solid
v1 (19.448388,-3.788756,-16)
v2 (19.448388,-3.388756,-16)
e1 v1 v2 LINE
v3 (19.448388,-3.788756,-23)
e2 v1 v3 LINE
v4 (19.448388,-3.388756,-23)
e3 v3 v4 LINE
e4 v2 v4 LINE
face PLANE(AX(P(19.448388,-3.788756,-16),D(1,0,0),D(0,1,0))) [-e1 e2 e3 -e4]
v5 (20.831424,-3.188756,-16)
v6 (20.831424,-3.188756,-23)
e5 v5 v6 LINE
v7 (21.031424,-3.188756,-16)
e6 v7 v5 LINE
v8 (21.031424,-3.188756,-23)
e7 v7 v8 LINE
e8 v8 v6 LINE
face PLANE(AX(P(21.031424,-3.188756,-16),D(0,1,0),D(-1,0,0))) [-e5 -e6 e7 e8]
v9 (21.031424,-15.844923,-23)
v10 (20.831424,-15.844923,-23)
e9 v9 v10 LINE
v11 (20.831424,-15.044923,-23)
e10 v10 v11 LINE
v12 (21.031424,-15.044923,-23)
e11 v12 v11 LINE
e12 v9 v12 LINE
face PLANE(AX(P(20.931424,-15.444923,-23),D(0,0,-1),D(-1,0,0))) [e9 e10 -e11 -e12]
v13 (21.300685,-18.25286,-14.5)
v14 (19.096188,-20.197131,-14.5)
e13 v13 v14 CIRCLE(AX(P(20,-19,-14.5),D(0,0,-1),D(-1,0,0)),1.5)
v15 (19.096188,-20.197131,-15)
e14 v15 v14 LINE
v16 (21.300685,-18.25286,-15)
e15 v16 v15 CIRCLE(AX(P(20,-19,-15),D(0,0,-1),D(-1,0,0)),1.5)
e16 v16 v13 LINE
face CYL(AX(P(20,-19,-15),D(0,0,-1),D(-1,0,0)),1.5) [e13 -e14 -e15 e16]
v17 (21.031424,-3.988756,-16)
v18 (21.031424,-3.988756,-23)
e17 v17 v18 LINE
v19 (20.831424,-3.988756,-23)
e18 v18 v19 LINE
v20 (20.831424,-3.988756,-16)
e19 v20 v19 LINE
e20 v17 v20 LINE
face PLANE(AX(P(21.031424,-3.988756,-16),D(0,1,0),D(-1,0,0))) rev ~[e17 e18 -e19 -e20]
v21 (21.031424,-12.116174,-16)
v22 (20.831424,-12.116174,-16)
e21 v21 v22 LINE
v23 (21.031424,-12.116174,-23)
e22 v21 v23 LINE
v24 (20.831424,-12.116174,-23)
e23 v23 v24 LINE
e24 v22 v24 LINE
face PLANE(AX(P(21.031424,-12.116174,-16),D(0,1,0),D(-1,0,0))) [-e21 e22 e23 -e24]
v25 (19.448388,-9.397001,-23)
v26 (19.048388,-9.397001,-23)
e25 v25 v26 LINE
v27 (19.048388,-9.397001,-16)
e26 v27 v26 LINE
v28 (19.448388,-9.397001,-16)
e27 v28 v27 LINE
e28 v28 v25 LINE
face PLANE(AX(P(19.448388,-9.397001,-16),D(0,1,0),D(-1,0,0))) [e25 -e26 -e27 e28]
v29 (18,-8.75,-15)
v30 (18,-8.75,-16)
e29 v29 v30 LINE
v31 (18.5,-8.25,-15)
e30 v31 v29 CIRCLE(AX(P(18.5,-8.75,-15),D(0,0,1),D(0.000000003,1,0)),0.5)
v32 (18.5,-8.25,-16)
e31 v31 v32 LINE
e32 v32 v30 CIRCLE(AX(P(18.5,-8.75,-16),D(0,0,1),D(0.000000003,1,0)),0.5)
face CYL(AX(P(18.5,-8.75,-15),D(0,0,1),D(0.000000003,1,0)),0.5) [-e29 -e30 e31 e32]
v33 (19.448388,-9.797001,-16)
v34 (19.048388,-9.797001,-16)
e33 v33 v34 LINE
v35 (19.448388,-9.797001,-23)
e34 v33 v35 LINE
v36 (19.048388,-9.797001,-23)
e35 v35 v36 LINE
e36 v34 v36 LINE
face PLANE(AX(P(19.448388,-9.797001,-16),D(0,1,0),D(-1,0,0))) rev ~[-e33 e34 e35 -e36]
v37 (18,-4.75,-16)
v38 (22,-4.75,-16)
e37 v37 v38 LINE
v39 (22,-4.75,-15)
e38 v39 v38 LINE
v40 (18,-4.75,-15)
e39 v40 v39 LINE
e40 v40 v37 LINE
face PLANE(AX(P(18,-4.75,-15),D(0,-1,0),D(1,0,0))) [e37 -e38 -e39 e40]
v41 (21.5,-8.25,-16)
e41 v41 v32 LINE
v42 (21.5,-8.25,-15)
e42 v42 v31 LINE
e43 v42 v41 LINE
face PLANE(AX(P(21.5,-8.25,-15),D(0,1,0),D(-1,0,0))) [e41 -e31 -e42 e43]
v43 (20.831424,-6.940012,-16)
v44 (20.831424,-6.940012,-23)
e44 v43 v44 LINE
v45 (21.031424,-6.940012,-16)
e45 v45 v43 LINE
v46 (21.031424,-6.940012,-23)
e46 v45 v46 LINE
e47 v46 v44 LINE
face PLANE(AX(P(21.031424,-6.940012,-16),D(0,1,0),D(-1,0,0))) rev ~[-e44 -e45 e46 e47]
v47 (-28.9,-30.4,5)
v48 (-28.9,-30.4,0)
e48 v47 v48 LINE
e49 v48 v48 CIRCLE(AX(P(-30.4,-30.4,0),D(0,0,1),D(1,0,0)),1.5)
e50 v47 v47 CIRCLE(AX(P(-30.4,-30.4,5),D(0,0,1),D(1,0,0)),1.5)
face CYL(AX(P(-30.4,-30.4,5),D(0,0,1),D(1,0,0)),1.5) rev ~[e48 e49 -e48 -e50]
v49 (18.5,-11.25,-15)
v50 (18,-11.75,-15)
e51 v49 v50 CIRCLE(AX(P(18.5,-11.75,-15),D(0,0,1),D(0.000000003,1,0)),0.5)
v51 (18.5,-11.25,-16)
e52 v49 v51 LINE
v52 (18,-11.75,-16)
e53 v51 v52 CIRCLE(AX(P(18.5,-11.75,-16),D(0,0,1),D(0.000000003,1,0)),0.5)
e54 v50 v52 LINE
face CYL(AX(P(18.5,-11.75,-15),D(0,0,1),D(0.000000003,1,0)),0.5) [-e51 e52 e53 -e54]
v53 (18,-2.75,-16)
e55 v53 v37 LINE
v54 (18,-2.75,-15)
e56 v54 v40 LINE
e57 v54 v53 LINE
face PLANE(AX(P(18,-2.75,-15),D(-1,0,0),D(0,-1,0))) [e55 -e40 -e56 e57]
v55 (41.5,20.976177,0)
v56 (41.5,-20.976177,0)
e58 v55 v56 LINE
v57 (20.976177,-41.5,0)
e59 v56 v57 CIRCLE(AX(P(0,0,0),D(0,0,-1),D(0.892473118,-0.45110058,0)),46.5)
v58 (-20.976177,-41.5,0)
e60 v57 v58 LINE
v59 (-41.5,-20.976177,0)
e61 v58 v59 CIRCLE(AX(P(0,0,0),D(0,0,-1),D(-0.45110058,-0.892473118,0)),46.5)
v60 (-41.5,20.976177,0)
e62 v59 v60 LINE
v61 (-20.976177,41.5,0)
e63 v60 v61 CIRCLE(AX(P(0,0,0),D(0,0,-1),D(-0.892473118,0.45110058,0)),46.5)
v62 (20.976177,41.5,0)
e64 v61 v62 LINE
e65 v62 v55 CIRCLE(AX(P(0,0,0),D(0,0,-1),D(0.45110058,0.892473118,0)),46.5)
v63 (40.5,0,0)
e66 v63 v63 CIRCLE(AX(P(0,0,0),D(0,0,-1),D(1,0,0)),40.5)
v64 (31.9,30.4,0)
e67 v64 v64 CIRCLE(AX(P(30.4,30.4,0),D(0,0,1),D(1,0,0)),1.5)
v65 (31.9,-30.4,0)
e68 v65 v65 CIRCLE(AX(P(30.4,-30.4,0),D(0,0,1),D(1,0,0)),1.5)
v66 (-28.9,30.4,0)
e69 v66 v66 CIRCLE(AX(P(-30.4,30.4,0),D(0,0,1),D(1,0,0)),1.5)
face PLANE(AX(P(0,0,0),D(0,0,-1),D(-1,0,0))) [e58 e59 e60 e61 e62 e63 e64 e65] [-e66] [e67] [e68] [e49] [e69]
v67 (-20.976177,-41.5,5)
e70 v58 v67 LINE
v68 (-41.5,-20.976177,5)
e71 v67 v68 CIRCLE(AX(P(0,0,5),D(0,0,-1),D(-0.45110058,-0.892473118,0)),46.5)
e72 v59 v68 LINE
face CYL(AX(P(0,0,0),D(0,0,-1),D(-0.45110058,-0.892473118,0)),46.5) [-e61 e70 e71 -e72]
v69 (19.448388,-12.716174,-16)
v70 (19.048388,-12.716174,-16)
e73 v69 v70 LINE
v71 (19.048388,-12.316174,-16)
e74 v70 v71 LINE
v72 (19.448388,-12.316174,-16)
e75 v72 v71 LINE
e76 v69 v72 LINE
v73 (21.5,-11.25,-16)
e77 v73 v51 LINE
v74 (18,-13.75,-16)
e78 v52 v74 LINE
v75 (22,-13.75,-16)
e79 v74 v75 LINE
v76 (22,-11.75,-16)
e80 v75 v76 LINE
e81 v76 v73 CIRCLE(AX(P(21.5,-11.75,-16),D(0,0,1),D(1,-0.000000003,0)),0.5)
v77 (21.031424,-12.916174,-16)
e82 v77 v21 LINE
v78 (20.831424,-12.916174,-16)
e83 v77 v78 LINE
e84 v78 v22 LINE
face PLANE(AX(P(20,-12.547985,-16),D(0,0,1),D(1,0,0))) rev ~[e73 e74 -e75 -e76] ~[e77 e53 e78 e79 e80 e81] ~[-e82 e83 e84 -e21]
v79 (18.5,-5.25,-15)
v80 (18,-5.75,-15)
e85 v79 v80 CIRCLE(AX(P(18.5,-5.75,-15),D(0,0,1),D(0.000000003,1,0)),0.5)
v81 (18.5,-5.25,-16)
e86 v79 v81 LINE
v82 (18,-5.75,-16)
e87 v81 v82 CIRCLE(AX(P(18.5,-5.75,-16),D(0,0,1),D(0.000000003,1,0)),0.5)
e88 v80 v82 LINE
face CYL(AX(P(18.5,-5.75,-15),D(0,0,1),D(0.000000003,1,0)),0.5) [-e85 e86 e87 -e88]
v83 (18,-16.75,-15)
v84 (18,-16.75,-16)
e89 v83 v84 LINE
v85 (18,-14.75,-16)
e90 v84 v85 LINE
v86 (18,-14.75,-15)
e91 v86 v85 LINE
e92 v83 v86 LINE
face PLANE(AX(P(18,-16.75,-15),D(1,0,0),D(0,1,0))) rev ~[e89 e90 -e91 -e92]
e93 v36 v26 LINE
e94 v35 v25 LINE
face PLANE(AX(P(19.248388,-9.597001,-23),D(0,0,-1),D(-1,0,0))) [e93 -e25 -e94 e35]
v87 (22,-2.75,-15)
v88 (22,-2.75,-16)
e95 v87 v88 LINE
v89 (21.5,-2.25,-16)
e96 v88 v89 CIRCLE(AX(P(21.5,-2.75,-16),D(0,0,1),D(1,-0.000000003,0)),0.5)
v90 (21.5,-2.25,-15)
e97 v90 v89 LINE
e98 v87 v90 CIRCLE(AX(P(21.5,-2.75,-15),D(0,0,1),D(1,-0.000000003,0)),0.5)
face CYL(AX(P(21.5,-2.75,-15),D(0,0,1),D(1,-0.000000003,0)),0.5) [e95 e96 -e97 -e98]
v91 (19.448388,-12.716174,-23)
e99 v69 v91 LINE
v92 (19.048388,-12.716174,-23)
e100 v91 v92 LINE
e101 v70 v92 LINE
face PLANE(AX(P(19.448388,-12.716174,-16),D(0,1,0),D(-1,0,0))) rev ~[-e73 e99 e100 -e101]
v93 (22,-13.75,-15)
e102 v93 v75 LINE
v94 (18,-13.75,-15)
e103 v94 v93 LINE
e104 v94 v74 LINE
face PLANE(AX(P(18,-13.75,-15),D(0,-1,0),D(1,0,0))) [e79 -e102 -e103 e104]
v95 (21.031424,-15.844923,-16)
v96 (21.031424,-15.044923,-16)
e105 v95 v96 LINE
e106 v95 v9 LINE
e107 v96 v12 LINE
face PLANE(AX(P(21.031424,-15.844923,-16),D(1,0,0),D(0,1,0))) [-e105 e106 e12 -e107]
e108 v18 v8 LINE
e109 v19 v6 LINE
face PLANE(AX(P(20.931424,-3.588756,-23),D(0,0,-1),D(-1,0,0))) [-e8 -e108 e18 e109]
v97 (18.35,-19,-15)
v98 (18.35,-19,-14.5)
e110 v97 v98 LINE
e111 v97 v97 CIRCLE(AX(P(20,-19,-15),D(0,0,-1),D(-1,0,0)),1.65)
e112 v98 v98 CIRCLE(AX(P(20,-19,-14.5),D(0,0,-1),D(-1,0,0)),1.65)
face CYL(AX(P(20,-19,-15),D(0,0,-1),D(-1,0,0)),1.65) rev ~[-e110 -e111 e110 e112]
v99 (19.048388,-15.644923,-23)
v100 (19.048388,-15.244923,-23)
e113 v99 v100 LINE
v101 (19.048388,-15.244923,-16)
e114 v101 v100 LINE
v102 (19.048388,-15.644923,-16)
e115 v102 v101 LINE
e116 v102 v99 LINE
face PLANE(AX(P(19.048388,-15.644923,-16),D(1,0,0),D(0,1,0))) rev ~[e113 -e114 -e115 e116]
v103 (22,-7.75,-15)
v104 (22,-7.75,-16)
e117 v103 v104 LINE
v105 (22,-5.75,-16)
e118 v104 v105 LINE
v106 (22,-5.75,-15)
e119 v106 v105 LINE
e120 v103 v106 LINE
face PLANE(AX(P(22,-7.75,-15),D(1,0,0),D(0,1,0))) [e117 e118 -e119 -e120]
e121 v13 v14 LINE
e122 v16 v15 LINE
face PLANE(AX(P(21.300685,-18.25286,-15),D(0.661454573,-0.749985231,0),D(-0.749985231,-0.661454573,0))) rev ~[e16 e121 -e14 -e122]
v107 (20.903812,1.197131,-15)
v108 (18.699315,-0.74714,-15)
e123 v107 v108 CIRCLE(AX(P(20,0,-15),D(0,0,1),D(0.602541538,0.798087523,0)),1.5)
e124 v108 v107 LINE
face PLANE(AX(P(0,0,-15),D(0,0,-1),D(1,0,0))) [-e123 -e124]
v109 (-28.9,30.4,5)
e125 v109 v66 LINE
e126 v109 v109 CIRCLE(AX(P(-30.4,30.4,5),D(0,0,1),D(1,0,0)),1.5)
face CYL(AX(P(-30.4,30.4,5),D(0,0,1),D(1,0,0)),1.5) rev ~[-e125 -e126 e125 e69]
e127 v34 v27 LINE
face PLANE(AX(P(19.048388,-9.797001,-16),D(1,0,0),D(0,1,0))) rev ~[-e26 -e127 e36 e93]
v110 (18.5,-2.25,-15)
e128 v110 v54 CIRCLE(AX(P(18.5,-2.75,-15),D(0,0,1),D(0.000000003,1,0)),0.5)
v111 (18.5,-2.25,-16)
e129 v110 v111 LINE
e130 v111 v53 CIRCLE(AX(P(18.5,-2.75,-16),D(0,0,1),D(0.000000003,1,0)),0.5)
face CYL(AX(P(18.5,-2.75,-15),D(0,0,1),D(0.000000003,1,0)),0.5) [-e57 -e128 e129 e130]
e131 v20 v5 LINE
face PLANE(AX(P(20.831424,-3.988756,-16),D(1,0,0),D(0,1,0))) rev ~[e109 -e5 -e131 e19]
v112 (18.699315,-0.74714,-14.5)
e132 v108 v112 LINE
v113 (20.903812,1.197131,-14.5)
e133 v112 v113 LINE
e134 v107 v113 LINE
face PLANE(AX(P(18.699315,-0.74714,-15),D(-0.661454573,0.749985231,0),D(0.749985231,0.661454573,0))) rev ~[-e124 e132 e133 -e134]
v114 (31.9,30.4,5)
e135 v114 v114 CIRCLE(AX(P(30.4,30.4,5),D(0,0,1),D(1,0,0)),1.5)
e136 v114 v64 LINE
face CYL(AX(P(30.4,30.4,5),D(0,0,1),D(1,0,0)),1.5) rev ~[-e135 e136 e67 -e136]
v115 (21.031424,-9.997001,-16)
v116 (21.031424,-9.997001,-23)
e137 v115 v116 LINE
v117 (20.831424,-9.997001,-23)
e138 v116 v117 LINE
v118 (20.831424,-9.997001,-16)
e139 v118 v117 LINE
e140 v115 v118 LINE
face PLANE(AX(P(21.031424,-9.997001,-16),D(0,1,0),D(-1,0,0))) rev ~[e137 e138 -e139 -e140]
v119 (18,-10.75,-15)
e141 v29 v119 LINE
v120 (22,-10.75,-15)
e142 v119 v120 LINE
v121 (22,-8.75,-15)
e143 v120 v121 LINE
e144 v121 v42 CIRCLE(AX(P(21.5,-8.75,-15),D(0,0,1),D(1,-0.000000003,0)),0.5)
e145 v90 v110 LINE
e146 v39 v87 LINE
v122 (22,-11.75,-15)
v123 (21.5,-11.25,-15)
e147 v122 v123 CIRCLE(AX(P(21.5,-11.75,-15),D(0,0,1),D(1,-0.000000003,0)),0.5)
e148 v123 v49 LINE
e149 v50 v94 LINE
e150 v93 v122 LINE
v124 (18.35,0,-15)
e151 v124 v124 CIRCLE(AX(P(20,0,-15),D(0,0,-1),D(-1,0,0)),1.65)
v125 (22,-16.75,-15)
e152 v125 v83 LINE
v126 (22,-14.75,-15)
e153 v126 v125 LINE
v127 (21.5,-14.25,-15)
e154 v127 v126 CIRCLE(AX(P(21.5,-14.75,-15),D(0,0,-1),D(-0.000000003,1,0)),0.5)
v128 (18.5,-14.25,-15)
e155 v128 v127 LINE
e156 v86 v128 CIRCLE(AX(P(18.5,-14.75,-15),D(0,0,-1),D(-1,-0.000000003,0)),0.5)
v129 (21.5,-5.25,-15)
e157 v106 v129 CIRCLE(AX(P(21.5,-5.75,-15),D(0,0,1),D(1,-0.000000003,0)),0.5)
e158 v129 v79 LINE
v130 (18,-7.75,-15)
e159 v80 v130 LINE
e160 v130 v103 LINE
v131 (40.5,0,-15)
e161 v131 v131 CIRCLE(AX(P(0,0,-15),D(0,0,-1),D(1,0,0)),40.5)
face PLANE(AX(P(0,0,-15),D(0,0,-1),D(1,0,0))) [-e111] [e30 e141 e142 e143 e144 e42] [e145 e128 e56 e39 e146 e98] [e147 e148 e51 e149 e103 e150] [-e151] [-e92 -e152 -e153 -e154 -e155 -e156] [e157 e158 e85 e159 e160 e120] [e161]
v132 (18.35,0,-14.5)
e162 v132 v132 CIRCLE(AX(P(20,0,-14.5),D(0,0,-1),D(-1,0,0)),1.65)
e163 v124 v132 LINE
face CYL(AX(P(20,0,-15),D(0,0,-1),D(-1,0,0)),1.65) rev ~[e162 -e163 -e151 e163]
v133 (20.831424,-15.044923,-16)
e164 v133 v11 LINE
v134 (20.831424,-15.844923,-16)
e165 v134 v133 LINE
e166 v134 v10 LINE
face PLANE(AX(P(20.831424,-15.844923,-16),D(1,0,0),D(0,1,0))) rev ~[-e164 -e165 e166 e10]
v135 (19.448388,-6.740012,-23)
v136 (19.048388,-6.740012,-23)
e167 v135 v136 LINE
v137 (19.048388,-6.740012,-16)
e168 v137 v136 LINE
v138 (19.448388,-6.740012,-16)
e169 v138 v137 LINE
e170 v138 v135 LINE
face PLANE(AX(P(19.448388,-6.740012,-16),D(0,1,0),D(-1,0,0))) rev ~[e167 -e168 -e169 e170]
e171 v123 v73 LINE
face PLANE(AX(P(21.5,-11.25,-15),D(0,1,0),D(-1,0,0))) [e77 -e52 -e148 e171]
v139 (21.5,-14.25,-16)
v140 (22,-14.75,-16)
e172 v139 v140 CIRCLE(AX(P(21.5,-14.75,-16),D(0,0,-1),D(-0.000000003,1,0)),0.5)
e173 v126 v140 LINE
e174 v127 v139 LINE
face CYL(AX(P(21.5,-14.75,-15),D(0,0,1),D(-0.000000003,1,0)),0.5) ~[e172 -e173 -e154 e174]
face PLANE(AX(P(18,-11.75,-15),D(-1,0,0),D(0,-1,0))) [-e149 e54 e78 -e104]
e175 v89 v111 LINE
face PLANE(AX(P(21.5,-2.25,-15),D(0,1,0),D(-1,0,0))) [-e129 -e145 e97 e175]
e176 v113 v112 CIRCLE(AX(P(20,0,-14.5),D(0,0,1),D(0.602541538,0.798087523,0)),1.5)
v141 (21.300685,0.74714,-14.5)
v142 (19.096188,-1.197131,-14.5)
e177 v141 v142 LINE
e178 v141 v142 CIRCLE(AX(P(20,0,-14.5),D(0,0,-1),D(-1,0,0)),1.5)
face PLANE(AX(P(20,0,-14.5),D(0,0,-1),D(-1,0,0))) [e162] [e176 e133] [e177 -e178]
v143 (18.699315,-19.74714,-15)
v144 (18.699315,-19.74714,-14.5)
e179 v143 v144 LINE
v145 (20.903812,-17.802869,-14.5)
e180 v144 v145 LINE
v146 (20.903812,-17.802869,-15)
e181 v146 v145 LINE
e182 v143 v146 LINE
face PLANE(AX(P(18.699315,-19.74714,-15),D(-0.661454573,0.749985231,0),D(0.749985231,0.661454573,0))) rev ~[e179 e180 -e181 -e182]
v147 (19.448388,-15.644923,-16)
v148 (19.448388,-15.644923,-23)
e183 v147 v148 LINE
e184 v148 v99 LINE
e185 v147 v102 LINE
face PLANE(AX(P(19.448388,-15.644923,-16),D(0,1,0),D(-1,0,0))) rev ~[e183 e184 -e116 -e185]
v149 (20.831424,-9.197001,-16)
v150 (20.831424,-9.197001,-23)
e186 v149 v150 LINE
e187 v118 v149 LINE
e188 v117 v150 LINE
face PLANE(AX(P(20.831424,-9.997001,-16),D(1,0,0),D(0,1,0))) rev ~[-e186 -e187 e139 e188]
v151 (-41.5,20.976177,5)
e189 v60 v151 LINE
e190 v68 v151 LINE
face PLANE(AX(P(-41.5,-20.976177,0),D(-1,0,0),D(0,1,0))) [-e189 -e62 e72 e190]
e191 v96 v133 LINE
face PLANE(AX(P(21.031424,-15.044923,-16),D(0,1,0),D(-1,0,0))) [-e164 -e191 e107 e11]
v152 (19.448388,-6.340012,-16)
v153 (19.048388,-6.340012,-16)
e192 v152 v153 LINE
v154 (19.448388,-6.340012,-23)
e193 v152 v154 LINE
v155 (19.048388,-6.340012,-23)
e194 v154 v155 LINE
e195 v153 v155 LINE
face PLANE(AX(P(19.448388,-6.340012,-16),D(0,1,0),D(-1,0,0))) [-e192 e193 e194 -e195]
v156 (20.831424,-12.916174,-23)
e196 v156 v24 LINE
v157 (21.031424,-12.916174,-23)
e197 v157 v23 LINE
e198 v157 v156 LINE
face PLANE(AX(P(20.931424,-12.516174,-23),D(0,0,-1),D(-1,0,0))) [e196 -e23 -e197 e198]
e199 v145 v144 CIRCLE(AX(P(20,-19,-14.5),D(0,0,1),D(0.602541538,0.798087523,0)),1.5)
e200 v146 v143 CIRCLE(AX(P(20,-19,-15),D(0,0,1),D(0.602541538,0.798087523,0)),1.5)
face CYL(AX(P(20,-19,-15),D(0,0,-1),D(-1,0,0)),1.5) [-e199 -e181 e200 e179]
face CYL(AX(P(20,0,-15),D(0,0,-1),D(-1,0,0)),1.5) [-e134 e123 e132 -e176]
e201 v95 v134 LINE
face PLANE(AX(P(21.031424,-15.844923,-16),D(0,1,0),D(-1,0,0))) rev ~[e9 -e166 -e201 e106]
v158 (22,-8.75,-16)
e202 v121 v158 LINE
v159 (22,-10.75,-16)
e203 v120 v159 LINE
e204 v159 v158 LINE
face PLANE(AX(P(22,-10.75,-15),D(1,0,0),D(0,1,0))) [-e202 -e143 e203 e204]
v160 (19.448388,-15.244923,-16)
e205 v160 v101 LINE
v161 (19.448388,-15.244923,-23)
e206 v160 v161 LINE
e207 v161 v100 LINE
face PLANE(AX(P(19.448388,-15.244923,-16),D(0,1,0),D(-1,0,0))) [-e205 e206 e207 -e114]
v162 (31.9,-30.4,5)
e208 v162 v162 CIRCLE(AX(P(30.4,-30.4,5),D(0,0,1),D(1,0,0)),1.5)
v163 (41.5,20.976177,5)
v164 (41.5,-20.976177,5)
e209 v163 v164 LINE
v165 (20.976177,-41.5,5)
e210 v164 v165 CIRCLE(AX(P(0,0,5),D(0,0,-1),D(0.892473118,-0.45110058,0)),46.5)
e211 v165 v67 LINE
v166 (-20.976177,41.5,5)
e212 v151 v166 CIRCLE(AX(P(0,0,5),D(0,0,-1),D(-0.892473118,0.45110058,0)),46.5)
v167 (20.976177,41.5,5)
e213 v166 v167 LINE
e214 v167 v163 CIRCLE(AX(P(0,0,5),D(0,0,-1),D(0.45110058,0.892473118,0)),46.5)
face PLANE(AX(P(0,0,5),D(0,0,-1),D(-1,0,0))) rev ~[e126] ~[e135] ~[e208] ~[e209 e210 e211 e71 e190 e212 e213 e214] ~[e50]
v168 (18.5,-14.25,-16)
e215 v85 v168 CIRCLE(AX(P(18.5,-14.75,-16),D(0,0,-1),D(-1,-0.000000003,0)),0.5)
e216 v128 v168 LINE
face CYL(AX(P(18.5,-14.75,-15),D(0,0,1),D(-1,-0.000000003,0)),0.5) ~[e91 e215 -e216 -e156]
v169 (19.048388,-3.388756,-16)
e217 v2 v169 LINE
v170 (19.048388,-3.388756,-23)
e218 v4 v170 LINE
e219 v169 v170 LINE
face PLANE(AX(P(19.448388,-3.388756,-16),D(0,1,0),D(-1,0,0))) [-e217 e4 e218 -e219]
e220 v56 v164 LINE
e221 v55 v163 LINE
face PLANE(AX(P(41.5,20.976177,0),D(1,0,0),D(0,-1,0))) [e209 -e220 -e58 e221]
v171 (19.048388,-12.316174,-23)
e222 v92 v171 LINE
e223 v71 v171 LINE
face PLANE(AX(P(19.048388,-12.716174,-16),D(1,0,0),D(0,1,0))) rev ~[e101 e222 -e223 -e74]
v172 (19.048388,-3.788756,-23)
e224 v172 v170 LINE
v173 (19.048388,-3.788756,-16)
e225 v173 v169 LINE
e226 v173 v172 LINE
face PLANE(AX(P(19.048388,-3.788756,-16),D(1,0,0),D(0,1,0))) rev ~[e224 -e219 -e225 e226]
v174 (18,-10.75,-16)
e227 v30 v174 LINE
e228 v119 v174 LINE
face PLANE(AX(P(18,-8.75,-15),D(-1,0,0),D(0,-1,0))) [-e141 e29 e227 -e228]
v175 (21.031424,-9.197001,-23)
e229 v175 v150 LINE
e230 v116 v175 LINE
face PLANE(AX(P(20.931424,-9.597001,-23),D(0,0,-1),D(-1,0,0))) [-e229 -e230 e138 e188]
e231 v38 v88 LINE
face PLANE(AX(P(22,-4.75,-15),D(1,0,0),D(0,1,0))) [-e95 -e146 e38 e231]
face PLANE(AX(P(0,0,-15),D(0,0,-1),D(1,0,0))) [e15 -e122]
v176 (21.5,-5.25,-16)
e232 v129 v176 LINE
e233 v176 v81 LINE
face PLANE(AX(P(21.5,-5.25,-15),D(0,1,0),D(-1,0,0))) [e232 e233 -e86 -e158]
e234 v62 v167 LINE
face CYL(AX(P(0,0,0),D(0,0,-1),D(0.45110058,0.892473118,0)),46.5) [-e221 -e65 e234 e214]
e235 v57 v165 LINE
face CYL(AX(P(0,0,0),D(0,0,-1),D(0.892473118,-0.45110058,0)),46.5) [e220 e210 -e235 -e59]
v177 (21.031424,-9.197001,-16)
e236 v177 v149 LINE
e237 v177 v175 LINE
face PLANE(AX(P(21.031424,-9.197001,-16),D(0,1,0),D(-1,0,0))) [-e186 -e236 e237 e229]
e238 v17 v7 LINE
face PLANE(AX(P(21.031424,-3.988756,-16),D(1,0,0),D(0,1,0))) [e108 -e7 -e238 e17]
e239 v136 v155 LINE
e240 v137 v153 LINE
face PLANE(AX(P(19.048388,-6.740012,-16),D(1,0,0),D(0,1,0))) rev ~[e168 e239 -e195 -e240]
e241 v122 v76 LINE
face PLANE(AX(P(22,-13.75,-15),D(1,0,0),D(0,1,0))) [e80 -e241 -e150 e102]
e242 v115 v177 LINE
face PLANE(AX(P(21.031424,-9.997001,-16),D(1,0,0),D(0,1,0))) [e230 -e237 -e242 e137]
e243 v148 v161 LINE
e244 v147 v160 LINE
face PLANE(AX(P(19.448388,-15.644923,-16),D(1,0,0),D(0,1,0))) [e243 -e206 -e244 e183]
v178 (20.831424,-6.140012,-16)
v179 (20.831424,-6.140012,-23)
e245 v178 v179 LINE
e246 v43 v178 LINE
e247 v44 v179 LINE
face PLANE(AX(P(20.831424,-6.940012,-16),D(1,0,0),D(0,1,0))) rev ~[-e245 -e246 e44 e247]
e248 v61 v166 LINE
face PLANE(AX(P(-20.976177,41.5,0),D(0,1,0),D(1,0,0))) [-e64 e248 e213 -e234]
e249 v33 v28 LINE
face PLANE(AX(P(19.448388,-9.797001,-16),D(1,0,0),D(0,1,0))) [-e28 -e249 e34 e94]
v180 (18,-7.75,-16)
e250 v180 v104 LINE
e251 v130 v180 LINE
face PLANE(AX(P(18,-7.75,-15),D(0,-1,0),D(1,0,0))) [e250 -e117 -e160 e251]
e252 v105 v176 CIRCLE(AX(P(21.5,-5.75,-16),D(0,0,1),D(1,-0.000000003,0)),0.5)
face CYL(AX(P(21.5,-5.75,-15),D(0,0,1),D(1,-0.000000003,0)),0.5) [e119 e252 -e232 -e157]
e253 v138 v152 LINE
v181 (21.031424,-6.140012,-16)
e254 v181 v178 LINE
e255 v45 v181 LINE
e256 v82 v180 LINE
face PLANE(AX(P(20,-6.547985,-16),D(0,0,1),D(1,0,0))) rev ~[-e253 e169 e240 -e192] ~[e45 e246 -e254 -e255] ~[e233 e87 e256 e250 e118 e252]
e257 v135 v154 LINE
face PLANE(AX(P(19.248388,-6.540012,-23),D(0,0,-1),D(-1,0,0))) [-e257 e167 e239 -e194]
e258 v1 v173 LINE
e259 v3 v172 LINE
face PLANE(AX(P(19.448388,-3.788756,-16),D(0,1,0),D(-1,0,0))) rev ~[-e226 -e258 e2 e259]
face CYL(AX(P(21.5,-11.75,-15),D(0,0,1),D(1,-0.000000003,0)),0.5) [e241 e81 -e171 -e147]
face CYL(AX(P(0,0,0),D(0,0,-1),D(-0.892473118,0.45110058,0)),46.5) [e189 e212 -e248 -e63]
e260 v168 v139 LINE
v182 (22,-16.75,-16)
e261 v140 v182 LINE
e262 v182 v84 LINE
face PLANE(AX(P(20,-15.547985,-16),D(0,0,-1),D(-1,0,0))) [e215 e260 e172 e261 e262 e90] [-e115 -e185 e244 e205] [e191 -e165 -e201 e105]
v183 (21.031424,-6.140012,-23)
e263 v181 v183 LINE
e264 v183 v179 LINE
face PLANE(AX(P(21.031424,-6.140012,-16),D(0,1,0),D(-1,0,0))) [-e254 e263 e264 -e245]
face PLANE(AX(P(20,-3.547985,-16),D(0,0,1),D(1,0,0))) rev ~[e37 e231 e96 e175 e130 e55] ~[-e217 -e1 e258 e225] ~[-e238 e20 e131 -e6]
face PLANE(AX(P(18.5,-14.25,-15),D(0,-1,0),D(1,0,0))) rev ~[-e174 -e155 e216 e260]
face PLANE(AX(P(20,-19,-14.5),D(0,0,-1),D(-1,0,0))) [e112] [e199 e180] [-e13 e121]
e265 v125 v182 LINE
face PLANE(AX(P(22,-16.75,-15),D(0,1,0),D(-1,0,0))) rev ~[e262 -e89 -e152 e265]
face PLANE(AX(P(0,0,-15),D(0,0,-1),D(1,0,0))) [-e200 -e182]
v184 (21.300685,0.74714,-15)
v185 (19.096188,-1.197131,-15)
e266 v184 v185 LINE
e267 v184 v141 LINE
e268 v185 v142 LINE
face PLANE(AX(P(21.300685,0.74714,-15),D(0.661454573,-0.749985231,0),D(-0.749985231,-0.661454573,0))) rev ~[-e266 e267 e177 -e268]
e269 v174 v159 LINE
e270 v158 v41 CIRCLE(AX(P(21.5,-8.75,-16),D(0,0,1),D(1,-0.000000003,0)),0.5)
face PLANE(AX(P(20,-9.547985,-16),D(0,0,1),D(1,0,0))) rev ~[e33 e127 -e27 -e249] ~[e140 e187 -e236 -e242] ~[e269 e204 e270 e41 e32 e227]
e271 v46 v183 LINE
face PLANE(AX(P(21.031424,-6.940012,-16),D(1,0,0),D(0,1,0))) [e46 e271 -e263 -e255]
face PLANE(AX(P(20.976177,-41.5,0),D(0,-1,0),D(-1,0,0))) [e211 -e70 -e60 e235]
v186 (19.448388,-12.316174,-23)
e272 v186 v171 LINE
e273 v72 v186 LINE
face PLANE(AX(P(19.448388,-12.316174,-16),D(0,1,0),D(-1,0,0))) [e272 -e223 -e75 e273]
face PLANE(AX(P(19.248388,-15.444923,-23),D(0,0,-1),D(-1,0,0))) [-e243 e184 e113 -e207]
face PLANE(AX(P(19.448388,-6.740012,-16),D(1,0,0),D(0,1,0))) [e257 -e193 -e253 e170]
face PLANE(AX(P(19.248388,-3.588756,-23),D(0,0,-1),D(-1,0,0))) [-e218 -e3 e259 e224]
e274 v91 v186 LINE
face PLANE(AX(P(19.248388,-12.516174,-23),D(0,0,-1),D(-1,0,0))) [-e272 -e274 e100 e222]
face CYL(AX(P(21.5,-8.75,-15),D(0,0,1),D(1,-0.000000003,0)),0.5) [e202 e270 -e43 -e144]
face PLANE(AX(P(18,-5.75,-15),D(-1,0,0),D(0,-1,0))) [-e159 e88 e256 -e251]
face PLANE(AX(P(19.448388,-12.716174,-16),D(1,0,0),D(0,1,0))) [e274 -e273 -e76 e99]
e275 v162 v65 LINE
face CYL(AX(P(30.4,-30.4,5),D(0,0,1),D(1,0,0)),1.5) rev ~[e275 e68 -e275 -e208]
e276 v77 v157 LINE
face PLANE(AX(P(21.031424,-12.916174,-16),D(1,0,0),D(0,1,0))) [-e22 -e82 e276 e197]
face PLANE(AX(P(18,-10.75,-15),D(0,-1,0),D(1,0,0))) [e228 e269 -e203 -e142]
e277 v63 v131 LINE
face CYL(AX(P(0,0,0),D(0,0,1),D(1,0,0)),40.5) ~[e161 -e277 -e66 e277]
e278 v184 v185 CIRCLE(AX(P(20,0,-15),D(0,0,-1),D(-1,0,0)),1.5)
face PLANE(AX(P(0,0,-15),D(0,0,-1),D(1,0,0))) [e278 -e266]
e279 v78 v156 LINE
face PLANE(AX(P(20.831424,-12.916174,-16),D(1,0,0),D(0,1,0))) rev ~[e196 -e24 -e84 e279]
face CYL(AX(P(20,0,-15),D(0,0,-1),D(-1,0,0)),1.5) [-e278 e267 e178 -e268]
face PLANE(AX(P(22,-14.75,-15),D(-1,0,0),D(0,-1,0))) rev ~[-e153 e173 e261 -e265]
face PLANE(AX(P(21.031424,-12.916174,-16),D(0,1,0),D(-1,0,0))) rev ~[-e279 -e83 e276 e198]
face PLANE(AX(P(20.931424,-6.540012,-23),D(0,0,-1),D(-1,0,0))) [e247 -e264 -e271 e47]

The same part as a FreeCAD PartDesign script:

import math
import FreeCAD as App
import Part
import Sketcher

V = App.Vector


def add_polygon(sketch, points):
    """Adds a closed chain of lines whose ends are joined by coincident constraints."""
    first, n = sketch.GeometryCount, len(points)
    for a, b in zip(points, points[1:] + points[:1]):
        sketch.addGeometry(Part.LineSegment(App.Vector(*a, 0), App.Vector(*b, 0)), False)
    for i in range(n):
        sketch.addConstraint(Sketcher.Constraint("Coincident", first + i, 2, first + (i + 1) % n, 1))

doc = App.newDocument("Part")
body = doc.addObject("PartDesign::Body", "Body")

sketch1 = body.newObject("Sketcher::SketchObject", "Sketch")
sketch1.AttachmentSupport = (doc.getObject("XY_Plane"), [""])
sketch1.MapMode = "FlatFace"
sketch1.addGeometry(Part.LineSegment(V(20.976177, 41.5, 0), V(-20.976177, 41.5, 0)), False)
sketch1.addGeometry(Part.ArcOfCircle(Part.Circle(V(0, 0, 0), V(0, 0, 1), 46.5), math.radians(116.814318), math.radians(153.185682)), False)
sketch1.addGeometry(Part.LineSegment(V(-41.5, 20.976177, 0), V(-41.5, -20.976177, 0)), False)
sketch1.addGeometry(Part.ArcOfCircle(Part.Circle(V(0, 0, 0), V(0, 0, 1), 46.5), math.radians(-153.185682), math.radians(-116.814318)), False)
sketch1.addGeometry(Part.LineSegment(V(-20.976177, -41.5, 0), V(20.976177, -41.5, 0)), False)
sketch1.addGeometry(Part.ArcOfCircle(Part.Circle(V(0, 0, 0), V(0, 0, 1), 46.5), math.radians(-63.185682), math.radians(-26.814318)), False)
sketch1.addGeometry(Part.LineSegment(V(41.5, -20.976177, 0), V(41.5, 20.976177, 0)), False)
sketch1.addGeometry(Part.ArcOfCircle(Part.Circle(V(0, 0, 0), V(0, 0, 1), 46.5), math.radians(26.814318), math.radians(63.185682)), False)
sketch1.addConstraint(Sketcher.Constraint("Coincident", 0, 2, 1, 1))
sketch1.addConstraint(Sketcher.Constraint("Coincident", 1, 2, 2, 1))
sketch1.addConstraint(Sketcher.Constraint("Coincident", 2, 2, 3, 1))
sketch1.addConstraint(Sketcher.Constraint("Coincident", 3, 2, 4, 1))
sketch1.addConstraint(Sketcher.Constraint("Coincident", 4, 2, 5, 1))
sketch1.addConstraint(Sketcher.Constraint("Coincident", 5, 2, 6, 1))
sketch1.addConstraint(Sketcher.Constraint("Coincident", 6, 2, 7, 1))
sketch1.addConstraint(Sketcher.Constraint("Coincident", 7, 2, 0, 1))
sketch1.addConstraint(Sketcher.Constraint("Horizontal", 0))
sketch1.addConstraint(Sketcher.Constraint("Vertical", 2))
sketch1.addConstraint(Sketcher.Constraint("Horizontal", 4))
sketch1.addConstraint(Sketcher.Constraint("Vertical", 6))
sketch1.addConstraint(Sketcher.Constraint("Coincident", 1, 3, -1, 1))
sketch1.addConstraint(Sketcher.Constraint("Coincident", 3, 3, -1, 1))
sketch1.addConstraint(Sketcher.Constraint("Coincident", 5, 3, -1, 1))
sketch1.addConstraint(Sketcher.Constraint("Coincident", 7, 3, -1, 1))
sketch1.addConstraint(Sketcher.Constraint("Equal", 1, 3))
sketch1.addConstraint(Sketcher.Constraint("Equal", 3, 5))
sketch1.addConstraint(Sketcher.Constraint("Equal", 5, 7))
sketch1.addConstraint(Sketcher.Constraint("Horizontal", 2, 2, 5, 2))
sketch1.addConstraint(Sketcher.Constraint("Vertical", 0, 2, 3, 2))
sketch1.addConstraint(Sketcher.Constraint("Equal", 4, 2))
sketch1.addConstraint(Sketcher.Constraint("Radius", 1, 46.5))
sketch1.addConstraint(Sketcher.Constraint("DistanceY", -1, 1, 0, 2, 41.5))
pad1 = body.newObject("PartDesign::Pad", "Pad")
pad1.Profile = sketch1
pad1.Length = 5

sketch2 = body.newObject("Sketcher::SketchObject", "Sketch001")
sketch2.AttachmentSupport = (doc.getObject("XY_Plane"), [""])
sketch2.MapMode = "FlatFace"
sketch2.AttachmentOffset = App.Placement(V(0, 0, 5), App.Rotation())
sketch2.addGeometry(Part.Circle(V(-30.4, 30.4, 0), V(0, 0, 1), 1.5), False)
sketch2.addGeometry(Part.Circle(V(30.4, 30.4, 0), V(0, 0, 1), 1.5), False)
sketch2.addGeometry(Part.Circle(V(30.4, -30.4, 0), V(0, 0, 1), 1.5), False)
sketch2.addGeometry(Part.Circle(V(-30.4, -30.4, 0), V(0, 0, 1), 1.5), False)
sketch2.addConstraint(Sketcher.Constraint("Equal", 0, 1))
sketch2.addConstraint(Sketcher.Constraint("Equal", 1, 2))
sketch2.addConstraint(Sketcher.Constraint("Equal", 2, 3))
sketch2.addConstraint(Sketcher.Constraint("Symmetric", 0, 3, 2, 3, -1, 1))
sketch2.addConstraint(Sketcher.Constraint("Symmetric", 1, 3, 3, 3, -1, 1))
sketch2.addConstraint(Sketcher.Constraint("Symmetric", 0, 3, 1, 3, -2))
sketch2.addConstraint(Sketcher.Constraint("Diameter", 0, 3.0))
sketch2.addConstraint(Sketcher.Constraint("DistanceX", 0, 3, -1, 1, 30.4))
sketch2.addConstraint(Sketcher.Constraint("DistanceY", -1, 1, 0, 3, 30.4))
pocket1 = body.newObject("PartDesign::Pocket", "Pocket")
pocket1.Profile = sketch2
pocket1.Length = 19

sketch3 = body.newObject("Sketcher::SketchObject", "Sketch002")
sketch3.AttachmentSupport = (doc.getObject("XY_Plane"), [""])
sketch3.MapMode = "FlatFace"
sketch3.addGeometry(Part.Circle(V(0, 0, 0), V(0, 0, 1), 40.5), False)
sketch3.addConstraint(Sketcher.Constraint("Coincident", 0, 3, -1, 1))
sketch3.addConstraint(Sketcher.Constraint("Diameter", 0, 81.0))
pad2 = body.newObject("PartDesign::Pad", "Pad001")
pad2.Profile = sketch3
pad2.Length = 15
pad2.Reversed = True

sketch4 = body.newObject("Sketcher::SketchObject", "Sketch003")
sketch4.AttachmentSupport = (doc.getObject("XY_Plane"), [""])
sketch4.MapMode = "FlatFace"
sketch4.AttachmentOffset = App.Placement(V(0, 0, -15), App.Rotation())
sketch4.addGeometry(Part.LineSegment(V(18, -7.75, 0), V(18, -5.75, 0)), False)
sketch4.addGeometry(Part.ArcOfCircle(Part.Circle(V(18.5, -5.75, 0), V(0, 0, 1), 0.5), math.radians(90), math.radians(180)), False)
sketch4.addGeometry(Part.LineSegment(V(18.5, -5.25, 0), V(21.5, -5.25, 0)), False)
sketch4.addGeometry(Part.ArcOfCircle(Part.Circle(V(21.5, -5.75, 0), V(0, 0, 1), 0.5), math.radians(0), math.radians(90)), False)
sketch4.addGeometry(Part.LineSegment(V(22, -5.75, 0), V(22, -7.75, 0)), False)
sketch4.addGeometry(Part.LineSegment(V(22, -7.75, 0), V(18, -7.75, 0)), False)
sketch4.addGeometry(Part.LineSegment(V(18.5, -8.25, 0), V(21.5, -8.25, 0)), False)
sketch4.addGeometry(Part.ArcOfCircle(Part.Circle(V(21.5, -8.75, 0), V(0, 0, 1), 0.5), math.radians(0), math.radians(90)), False)
sketch4.addGeometry(Part.LineSegment(V(22, -8.75, 0), V(22, -10.75, 0)), False)
sketch4.addGeometry(Part.LineSegment(V(22, -10.75, 0), V(18, -10.75, 0)), False)
sketch4.addGeometry(Part.LineSegment(V(18, -10.75, 0), V(18, -8.75, 0)), False)
sketch4.addGeometry(Part.ArcOfCircle(Part.Circle(V(18.5, -8.75, 0), V(0, 0, 1), 0.5), math.radians(90), math.radians(180)), False)
sketch4.addGeometry(Part.LineSegment(V(18, -4.75, 0), V(18, -2.75, 0)), False)
sketch4.addGeometry(Part.ArcOfCircle(Part.Circle(V(18.5, -2.75, 0), V(0, 0, 1), 0.5), math.radians(90), math.radians(180)), False)
sketch4.addGeometry(Part.LineSegment(V(18.5, -2.25, 0), V(21.5, -2.25, 0)), False)
sketch4.addGeometry(Part.ArcOfCircle(Part.Circle(V(21.5, -2.75, 0), V(0, 0, 1), 0.5), math.radians(0), math.radians(90)), False)
sketch4.addGeometry(Part.LineSegment(V(22, -2.75, 0), V(22, -4.75, 0)), False)
sketch4.addGeometry(Part.LineSegment(V(22, -4.75, 0), V(18, -4.75, 0)), False)
sketch4.addGeometry(Part.LineSegment(V(18.5, -11.25, 0), V(21.5, -11.25, 0)), False)
sketch4.addGeometry(Part.ArcOfCircle(Part.Circle(V(21.5, -11.75, 0), V(0, 0, 1), 0.5), math.radians(0), math.radians(90)), False)
sketch4.addGeometry(Part.LineSegment(V(22, -11.75, 0), V(22, -13.75, 0)), False)
sketch4.addGeometry(Part.LineSegment(V(22, -13.75, 0), V(18, -13.75, 0)), False)
sketch4.addGeometry(Part.LineSegment(V(18, -13.75, 0), V(18, -11.75, 0)), False)
sketch4.addGeometry(Part.ArcOfCircle(Part.Circle(V(18.5, -11.75, 0), V(0, 0, 1), 0.5), math.radians(90), math.radians(180)), False)
sketch4.addGeometry(Part.LineSegment(V(22, -14.75, 0), V(22, -16.75, 0)), False)
sketch4.addGeometry(Part.LineSegment(V(22, -16.75, 0), V(18, -16.75, 0)), False)
sketch4.addGeometry(Part.LineSegment(V(18, -16.75, 0), V(18, -14.75, 0)), False)
sketch4.addGeometry(Part.ArcOfCircle(Part.Circle(V(18.5, -14.75, 0), V(0, 0, 1), 0.5), math.radians(90), math.radians(180)), False)
sketch4.addGeometry(Part.LineSegment(V(18.5, -14.25, 0), V(21.5, -14.25, 0)), False)
sketch4.addGeometry(Part.ArcOfCircle(Part.Circle(V(21.5, -14.75, 0), V(0, 0, 1), 0.5), math.radians(0), math.radians(90)), False)
sketch4.addConstraint(Sketcher.Constraint("Tangent", 0, 2, 1, 2))
sketch4.addConstraint(Sketcher.Constraint("Tangent", 1, 1, 2, 1))
sketch4.addConstraint(Sketcher.Constraint("Tangent", 2, 2, 3, 2))
sketch4.addConstraint(Sketcher.Constraint("Tangent", 3, 1, 4, 1))
sketch4.addConstraint(Sketcher.Constraint("Coincident", 4, 2, 5, 1))
sketch4.addConstraint(Sketcher.Constraint("Coincident", 5, 2, 0, 1))
sketch4.addConstraint(Sketcher.Constraint("Tangent", 6, 2, 7, 2))
sketch4.addConstraint(Sketcher.Constraint("Tangent", 7, 1, 8, 1))
sketch4.addConstraint(Sketcher.Constraint("Coincident", 8, 2, 9, 1))
sketch4.addConstraint(Sketcher.Constraint("Coincident", 9, 2, 10, 1))
sketch4.addConstraint(Sketcher.Constraint("Tangent", 10, 2, 11, 2))
sketch4.addConstraint(Sketcher.Constraint("Tangent", 11, 1, 6, 1))
sketch4.addConstraint(Sketcher.Constraint("Tangent", 12, 2, 13, 2))
sketch4.addConstraint(Sketcher.Constraint("Tangent", 13, 1, 14, 1))
sketch4.addConstraint(Sketcher.Constraint("Tangent", 14, 2, 15, 2))
sketch4.addConstraint(Sketcher.Constraint("Tangent", 15, 1, 16, 1))
sketch4.addConstraint(Sketcher.Constraint("Coincident", 16, 2, 17, 1))
sketch4.addConstraint(Sketcher.Constraint("Coincident", 17, 2, 12, 1))
sketch4.addConstraint(Sketcher.Constraint("Tangent", 18, 2, 19, 2))
sketch4.addConstraint(Sketcher.Constraint("Tangent", 19, 1, 20, 1))
sketch4.addConstraint(Sketcher.Constraint("Coincident", 20, 2, 21, 1))
sketch4.addConstraint(Sketcher.Constraint("Coincident", 21, 2, 22, 1))
sketch4.addConstraint(Sketcher.Constraint("Tangent", 22, 2, 23, 2))
sketch4.addConstraint(Sketcher.Constraint("Tangent", 23, 1, 18, 1))
sketch4.addConstraint(Sketcher.Constraint("Coincident", 24, 2, 25, 1))
sketch4.addConstraint(Sketcher.Constraint("Coincident", 25, 2, 26, 1))
sketch4.addConstraint(Sketcher.Constraint("Tangent", 26, 2, 27, 2))
sketch4.addConstraint(Sketcher.Constraint("Tangent", 27, 1, 28, 1))
sketch4.addConstraint(Sketcher.Constraint("Tangent", 28, 2, 29, 2))
sketch4.addConstraint(Sketcher.Constraint("Tangent", 29, 1, 24, 1))
sketch4.addConstraint(Sketcher.Constraint("Vertical", 0))
sketch4.addConstraint(Sketcher.Constraint("Horizontal", 2))
sketch4.addConstraint(Sketcher.Constraint("Vertical", 4))
sketch4.addConstraint(Sketcher.Constraint("Horizontal", 5))
sketch4.addConstraint(Sketcher.Constraint("Horizontal", 6))
sketch4.addConstraint(Sketcher.Constraint("Vertical", 8))
sketch4.addConstraint(Sketcher.Constraint("Horizontal", 9))
sketch4.addConstraint(Sketcher.Constraint("Vertical", 10))
sketch4.addConstraint(Sketcher.Constraint("Vertical", 12))
sketch4.addConstraint(Sketcher.Constraint("Horizontal", 14))
sketch4.addConstraint(Sketcher.Constraint("Vertical", 16))
sketch4.addConstraint(Sketcher.Constraint("Horizontal", 17))
sketch4.addConstraint(Sketcher.Constraint("Horizontal", 18))
sketch4.addConstraint(Sketcher.Constraint("Vertical", 20))
sketch4.addConstraint(Sketcher.Constraint("Horizontal", 21))
sketch4.addConstraint(Sketcher.Constraint("Vertical", 22))
sketch4.addConstraint(Sketcher.Constraint("Vertical", 24))
sketch4.addConstraint(Sketcher.Constraint("Horizontal", 25))
sketch4.addConstraint(Sketcher.Constraint("Vertical", 26))
sketch4.addConstraint(Sketcher.Constraint("Horizontal", 28))
sketch4.addConstraint(Sketcher.Constraint("Equal", 1, 3))
sketch4.addConstraint(Sketcher.Constraint("Equal", 3, 7))
sketch4.addConstraint(Sketcher.Constraint("Equal", 7, 11))
sketch4.addConstraint(Sketcher.Constraint("Equal", 11, 13))
sketch4.addConstraint(Sketcher.Constraint("Equal", 13, 15))
sketch4.addConstraint(Sketcher.Constraint("Equal", 15, 19))
sketch4.addConstraint(Sketcher.Constraint("Equal", 19, 23))
sketch4.addConstraint(Sketcher.Constraint("Equal", 23, 27))
sketch4.addConstraint(Sketcher.Constraint("Equal", 27, 29))
sketch4.addConstraint(Sketcher.Constraint("Vertical", 3, 3, 7, 3))
sketch4.addConstraint(Sketcher.Constraint("Vertical", 1, 3, 11, 3))
sketch4.addConstraint(Sketcher.Constraint("Vertical", 11, 3, 13, 3))
sketch4.addConstraint(Sketcher.Constraint("Vertical", 7, 3, 15, 3))
sketch4.addConstraint(Sketcher.Constraint("Vertical", 15, 3, 19, 3))
sketch4.addConstraint(Sketcher.Constraint("Vertical", 13, 3, 23, 3))
sketch4.addConstraint(Sketcher.Constraint("Vertical", 23, 3, 27, 3))
sketch4.addConstraint(Sketcher.Constraint("Vertical", 19, 3, 29, 3))
sketch4.addConstraint(Sketcher.Constraint("Equal", 4, 8))
sketch4.addConstraint(Sketcher.Constraint("Equal", 10, 12))
sketch4.addConstraint(Sketcher.Constraint("Equal", 16, 20))
sketch4.addConstraint(Sketcher.Constraint("Equal", 22, 24))
sketch4.addConstraint(Sketcher.Constraint("Radius", 1, 0.5))
sketch4.addConstraint(Sketcher.Constraint("DistanceX", 2, 1, 2, 2, 3.0))
sketch4.addConstraint(Sketcher.Constraint("DistanceY", 0, 1, 0, 2, 2.0))
sketch4.addConstraint(Sketcher.Constraint("DistanceX", -1, 1, 0, 2, 18.0))
sketch4.addConstraint(Sketcher.Constraint("DistanceY", 7, 3, 3, 3, 3.0))
sketch4.addConstraint(Sketcher.Constraint("DistanceY", 1, 3, 13, 3, 3.0))
sketch4.addConstraint(Sketcher.Constraint("DistanceY", 19, 3, 7, 3, 3.0))
sketch4.addConstraint(Sketcher.Constraint("DistanceY", 27, 3, 23, 3, 3.0))
sketch4.addConstraint(Sketcher.Constraint("DistanceY", 1, 3, -1, 1, 5.75))
pad3 = body.newObject("PartDesign::Pad", "Pad002")
pad3.Profile = sketch4
pad3.Length = 1
pad3.Reversed = True

sketch5 = body.newObject("Sketcher::SketchObject", "Sketch004")
sketch5.AttachmentSupport = (doc.getObject("XY_Plane"), [""])
sketch5.MapMode = "FlatFace"
sketch5.AttachmentOffset = App.Placement(V(0, 0, -16), App.Rotation())
add_polygon(sketch5, [(19.448388, -6.340012), (19.448388, -6.740012), (19.048388, -6.740012), (19.048388, -6.340012)])
add_polygon(sketch5, [(21.031424, -3.188756), (21.031424, -3.988756), (20.831424, -3.988756), (20.831424, -3.188756)])
add_polygon(sketch5, [(19.448388, -3.388756), (19.448388, -3.788756), (19.048388, -3.788756), (19.048388, -3.388756)])
add_polygon(sketch5, [(21.031424, -6.140012), (21.031424, -6.940012), (20.831424, -6.940012), (20.831424, -6.140012)])
add_polygon(sketch5, [(19.448388, -9.397001), (19.448388, -9.797001), (19.048388, -9.797001), (19.048388, -9.397001)])
add_polygon(sketch5, [(21.031424, -9.197001), (21.031424, -9.997001), (20.831424, -9.997001), (20.831424, -9.197001)])
add_polygon(sketch5, [(21.031424, -12.116174), (21.031424, -12.916174), (20.831424, -12.916174), (20.831424, -12.116174)])
add_polygon(sketch5, [(19.448388, -12.316174), (19.448388, -12.716174), (19.048388, -12.716174), (19.048388, -12.316174)])
add_polygon(sketch5, [(19.448388, -15.244923), (19.448388, -15.644923), (19.048388, -15.644923), (19.048388, -15.244923)])
add_polygon(sketch5, [(21.031424, -15.044923), (21.031424, -15.844923), (20.831424, -15.844923), (20.831424, -15.044923)])
sketch5.addConstraint(Sketcher.Constraint("Vertical", 0))
sketch5.addConstraint(Sketcher.Constraint("Horizontal", 1))
sketch5.addConstraint(Sketcher.Constraint("Vertical", 2))
sketch5.addConstraint(Sketcher.Constraint("Horizontal", 3))
sketch5.addConstraint(Sketcher.Constraint("Vertical", 4))
sketch5.addConstraint(Sketcher.Constraint("Horizontal", 5))
sketch5.addConstraint(Sketcher.Constraint("Vertical", 6))
sketch5.addConstraint(Sketcher.Constraint("Horizontal", 7))
sketch5.addConstraint(Sketcher.Constraint("Vertical", 8))
sketch5.addConstraint(Sketcher.Constraint("Horizontal", 9))
sketch5.addConstraint(Sketcher.Constraint("Vertical", 10))
sketch5.addConstraint(Sketcher.Constraint("Horizontal", 11))
sketch5.addConstraint(Sketcher.Constraint("Vertical", 12))
sketch5.addConstraint(Sketcher.Constraint("Horizontal", 13))
sketch5.addConstraint(Sketcher.Constraint("Vertical", 14))
sketch5.addConstraint(Sketcher.Constraint("Horizontal", 15))
sketch5.addConstraint(Sketcher.Constraint("Vertical", 16))
sketch5.addConstraint(Sketcher.Constraint("Horizontal", 17))
sketch5.addConstraint(Sketcher.Constraint("Vertical", 18))
sketch5.addConstraint(Sketcher.Constraint("Horizontal", 19))
sketch5.addConstraint(Sketcher.Constraint("Vertical", 20))
sketch5.addConstraint(Sketcher.Constraint("Horizontal", 21))
sketch5.addConstraint(Sketcher.Constraint("Vertical", 22))
sketch5.addConstraint(Sketcher.Constraint("Horizontal", 23))
sketch5.addConstraint(Sketcher.Constraint("Vertical", 24))
sketch5.addConstraint(Sketcher.Constraint("Horizontal", 25))
sketch5.addConstraint(Sketcher.Constraint("Vertical", 26))
sketch5.addConstraint(Sketcher.Constraint("Horizontal", 27))
sketch5.addConstraint(Sketcher.Constraint("Vertical", 28))
sketch5.addConstraint(Sketcher.Constraint("Horizontal", 29))
sketch5.addConstraint(Sketcher.Constraint("Vertical", 30))
sketch5.addConstraint(Sketcher.Constraint("Horizontal", 31))
sketch5.addConstraint(Sketcher.Constraint("Vertical", 32))
sketch5.addConstraint(Sketcher.Constraint("Horizontal", 33))
sketch5.addConstraint(Sketcher.Constraint("Vertical", 34))
sketch5.addConstraint(Sketcher.Constraint("Horizontal", 35))
sketch5.addConstraint(Sketcher.Constraint("Vertical", 36))
sketch5.addConstraint(Sketcher.Constraint("Horizontal", 37))
sketch5.addConstraint(Sketcher.Constraint("Vertical", 38))
sketch5.addConstraint(Sketcher.Constraint("Horizontal", 39))
sketch5.addConstraint(Sketcher.Constraint("Vertical", 3, 2, 8, 2))
sketch5.addConstraint(Sketcher.Constraint("Vertical", 2, 2, 9, 2))
sketch5.addConstraint(Sketcher.Constraint("Vertical", 7, 2, 12, 2))
sketch5.addConstraint(Sketcher.Constraint("Vertical", 6, 2, 13, 2))
sketch5.addConstraint(Sketcher.Constraint("Vertical", 11, 2, 16, 2))
sketch5.addConstraint(Sketcher.Constraint("Vertical", 10, 2, 17, 2))
sketch5.addConstraint(Sketcher.Constraint("Vertical", 15, 2, 20, 2))
sketch5.addConstraint(Sketcher.Constraint("Vertical", 14, 2, 21, 2))
sketch5.addConstraint(Sketcher.Constraint("Vertical", 23, 2, 24, 2))
sketch5.addConstraint(Sketcher.Constraint("Vertical", 22, 2, 25, 2))
sketch5.addConstraint(Sketcher.Constraint("Vertical", 19, 2, 28, 2))
sketch5.addConstraint(Sketcher.Constraint("Vertical", 18, 2, 29, 2))
sketch5.addConstraint(Sketcher.Constraint("Vertical", 31, 2, 32, 2))
sketch5.addConstraint(Sketcher.Constraint("Vertical", 30, 2, 33, 2))
sketch5.addConstraint(Sketcher.Constraint("Vertical", 27, 2, 36, 2))
sketch5.addConstraint(Sketcher.Constraint("Vertical", 26, 2, 37, 2))
sketch5.addConstraint(Sketcher.Constraint("Equal", 35, 0))
sketch5.addConstraint(Sketcher.Constraint("Equal", 2, 8))
sketch5.addConstraint(Sketcher.Constraint("Equal", 6, 12))
sketch5.addConstraint(Sketcher.Constraint("Equal", 10, 16))
sketch5.addConstraint(Sketcher.Constraint("Equal", 14, 20))
sketch5.addConstraint(Sketcher.Constraint("Equal", 22, 24))
sketch5.addConstraint(Sketcher.Constraint("Equal", 18, 28))
sketch5.addConstraint(Sketcher.Constraint("Equal", 30, 32))
sketch5.addConstraint(Sketcher.Constraint("Equal", 26, 36))
sketch5.addConstraint(Sketcher.Constraint("DistanceX", 1, 2, 1, 1, 0.4))
sketch5.addConstraint(Sketcher.Constraint("DistanceX", 5, 2, 5, 1, 0.2))
sketch5.addConstraint(Sketcher.Constraint("DistanceY", 4, 2, 4, 1, 0.8))
sketch5.addConstraint(Sketcher.Constraint("DistanceY", 5, 2, 8, 2, 0.2))
sketch5.addConstraint(Sketcher.Constraint("DistanceY", 12, 2, 0, 2, 0.2))
sketch5.addConstraint(Sketcher.Constraint("DistanceY", 20, 2, 16, 2, 0.2))
sketch5.addConstraint(Sketcher.Constraint("DistanceY", 25, 2, 28, 2, 0.2))
sketch5.addConstraint(Sketcher.Constraint("DistanceY", 36, 2, 32, 2, 0.2))
sketch5.addConstraint(Sketcher.Constraint("DistanceY", 16, 2, -1, 1, 9.797001))
sketch5.addConstraint(Sketcher.Constraint("DistanceX", -1, 1, 0, 2, 19.448388))
sketch5.addConstraint(Sketcher.Constraint("DistanceY", 16, 2, 0, 2, 3.056989))
sketch5.addConstraint(Sketcher.Constraint("DistanceY", 32, 2, 28, 2, 2.928749))
sketch5.addConstraint(Sketcher.Constraint("DistanceX", -1, 1, 4, 2, 21.031424))
sketch5.addConstraint(Sketcher.Constraint("DistanceY", 4, 2, -1, 1, 3.988756))
sketch5.addConstraint(Sketcher.Constraint("DistanceY", 24, 2, -1, 1, 12.916174))
pad4 = body.newObject("PartDesign::Pad", "Pad003")
pad4.Profile = sketch5
pad4.Length = 7
pad4.Reversed = True

sketch6 = body.newObject("Sketcher::SketchObject", "Sketch005")
sketch6.AttachmentSupport = (doc.getObject("XY_Plane"), [""])
sketch6.MapMode = "FlatFace"
sketch6.AttachmentOffset = App.Placement(V(0, 0, -15), App.Rotation())
sketch6.addGeometry(Part.Circle(V(20, 0, 0), V(0, 0, 1), 1.65), False)
sketch6.addGeometry(Part.Circle(V(20, 0, 0), V(0, 0, 1), 1.5), False)
sketch6.addGeometry(Part.Circle(V(20, -19, 0), V(0, 0, 1), 1.65), False)
sketch6.addGeometry(Part.Circle(V(20, -19, 0), V(0, 0, 1), 1.5), False)
sketch6.addConstraint(Sketcher.Constraint("Coincident", 1, 3, 0, 3))
sketch6.addConstraint(Sketcher.Constraint("Coincident", 3, 3, 2, 3))
sketch6.addConstraint(Sketcher.Constraint("Equal", 0, 2))
sketch6.addConstraint(Sketcher.Constraint("Equal", 1, 3))
sketch6.addConstraint(Sketcher.Constraint("PointOnObject", 0, 3, -1))
sketch6.addConstraint(Sketcher.Constraint("Vertical", 1, 3, 2, 3))
sketch6.addConstraint(Sketcher.Constraint("Diameter", 1, 3.0))
sketch6.addConstraint(Sketcher.Constraint("Diameter", 0, 3.3))
sketch6.addConstraint(Sketcher.Constraint("DistanceX", -1, 1, 0, 3, 20.0))
sketch6.addConstraint(Sketcher.Constraint("DistanceY", 2, 3, -1, 1, 19.0))
pocket2 = body.newObject("PartDesign::Pocket", "Pocket001")
pocket2.Profile = sketch6
pocket2.Length = 0.5
pocket2.Reversed = True

sketch7 = body.newObject("Sketcher::SketchObject", "Sketch006")
sketch7.AttachmentSupport = (doc.getObject("XY_Plane"), [""])
sketch7.MapMode = "FlatFace"
sketch7.AttachmentOffset = App.Placement(V(0, 0, -15), App.Rotation())
sketch7.addGeometry(Part.LineSegment(V(21.300685, 0.74714, 0), V(19.096188, -1.197131, 0)), False)
sketch7.addGeometry(Part.ArcOfCircle(Part.Circle(V(20, 0, 0), V(0, 0, 1), 1.5), math.radians(-150.126058), math.radians(-127.05214)), False)
sketch7.addGeometry(Part.LineSegment(V(18.699315, -0.74714, 0), V(20.903812, 1.197131, 0)), False)
sketch7.addGeometry(Part.ArcOfCircle(Part.Circle(V(20, 0, 0), V(0, 0, 1), 1.5), math.radians(29.873942), math.radians(52.94786)), False)
sketch7.addGeometry(Part.LineSegment(V(21.300685, -18.25286, 0), V(19.096188, -20.197131, 0)), False)
sketch7.addGeometry(Part.ArcOfCircle(Part.Circle(V(20, -19, 0), V(0, 0, 1), 1.5), math.radians(-150.126058), math.radians(-127.05214)), False)
sketch7.addGeometry(Part.LineSegment(V(18.699315, -19.74714, 0), V(20.903812, -17.802869, 0)), False)
sketch7.addGeometry(Part.ArcOfCircle(Part.Circle(V(20, -19, 0), V(0, 0, 1), 1.5), math.radians(29.873942), math.radians(52.94786)), False)
sketch7.addConstraint(Sketcher.Constraint("Coincident", 0, 2, 1, 2))
sketch7.addConstraint(Sketcher.Constraint("Coincident", 1, 1, 2, 1))
sketch7.addConstraint(Sketcher.Constraint("Coincident", 2, 2, 3, 2))
sketch7.addConstraint(Sketcher.Constraint("Coincident", 3, 1, 0, 1))
sketch7.addConstraint(Sketcher.Constraint("Coincident", 4, 2, 5, 2))
sketch7.addConstraint(Sketcher.Constraint("Coincident", 5, 1, 6, 1))
sketch7.addConstraint(Sketcher.Constraint("Coincident", 6, 2, 7, 2))
sketch7.addConstraint(Sketcher.Constraint("Coincident", 7, 1, 4, 1))
sketch7.addConstraint(Sketcher.Constraint("Coincident", 3, 3, 1, 3))
sketch7.addConstraint(Sketcher.Constraint("Coincident", 7, 3, 5, 3))
sketch7.addConstraint(Sketcher.Constraint("Equal", 1, 3))
sketch7.addConstraint(Sketcher.Constraint("Equal", 3, 5))
sketch7.addConstraint(Sketcher.Constraint("Equal", 5, 7))
sketch7.addConstraint(Sketcher.Constraint("PointOnObject", 1, 3, -1))
sketch7.addConstraint(Sketcher.Constraint("Parallel", 0, 2))
sketch7.addConstraint(Sketcher.Constraint("Parallel", 2, 4))
sketch7.addConstraint(Sketcher.Constraint("Parallel", 4, 6))
sketch7.addConstraint(Sketcher.Constraint("Vertical", 3, 3, 5, 3))
sketch7.addConstraint(Sketcher.Constraint("Vertical", 0, 2, 4, 2))
sketch7.addConstraint(Sketcher.Constraint("Vertical", 1, 1, 5, 1))
sketch7.addConstraint(Sketcher.Constraint("Equal", 0, 2))
sketch7.addConstraint(Sketcher.Constraint("Radius", 1, 1.5))
sketch7.addConstraint(Sketcher.Constraint("DistanceX", -1, 1, 1, 3, 20.0))
sketch7.addConstraint(Sketcher.Constraint("DistanceY", 5, 3, -1, 1, 19.0))
sketch7.addConstraint(Sketcher.Constraint("DistanceY", 0, 2, -1, 1, 1.197131))
sketch7.addConstraint(Sketcher.Constraint("DistanceY", 1, 1, -1, 1, 0.74714))
pocket3 = body.newObject("PartDesign::Pocket", "Pocket002")
pocket3.Profile = sketch7
pocket3.Length = 0.5
pocket3.Reversed = True

doc.recompute()
